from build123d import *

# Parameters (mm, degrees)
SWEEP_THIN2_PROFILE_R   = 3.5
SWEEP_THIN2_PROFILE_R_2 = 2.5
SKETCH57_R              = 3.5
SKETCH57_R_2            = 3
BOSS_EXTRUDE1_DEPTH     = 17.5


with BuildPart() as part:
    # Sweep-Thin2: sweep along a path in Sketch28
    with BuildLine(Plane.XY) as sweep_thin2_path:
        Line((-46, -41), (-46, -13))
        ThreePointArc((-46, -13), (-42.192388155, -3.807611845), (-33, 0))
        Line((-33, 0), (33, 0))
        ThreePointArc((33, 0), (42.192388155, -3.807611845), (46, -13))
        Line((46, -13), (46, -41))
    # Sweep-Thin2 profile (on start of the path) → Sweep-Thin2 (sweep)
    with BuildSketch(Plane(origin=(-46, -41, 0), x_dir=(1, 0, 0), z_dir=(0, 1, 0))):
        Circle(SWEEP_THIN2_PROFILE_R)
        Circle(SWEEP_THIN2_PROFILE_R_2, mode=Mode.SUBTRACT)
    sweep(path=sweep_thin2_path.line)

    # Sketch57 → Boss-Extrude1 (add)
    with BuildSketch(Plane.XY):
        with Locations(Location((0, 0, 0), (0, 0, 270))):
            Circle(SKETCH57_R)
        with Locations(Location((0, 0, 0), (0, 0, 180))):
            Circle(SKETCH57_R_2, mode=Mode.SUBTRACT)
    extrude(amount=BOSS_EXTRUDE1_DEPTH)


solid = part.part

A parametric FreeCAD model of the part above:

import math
import FreeCAD as App
import Part
import Sketcher

doc = App.newDocument("Part")
body = doc.addObject("PartDesign::Body", "Body")

# Sketch on XZ plane
sketch1 = body.newObject("Sketcher::SketchObject", "Sketch")
sketch1.AttachmentSupport = (doc.getObject("XZ_Plane"), [""])
sketch1.MapMode = "FlatFace"
sketch1.AttachmentOffset = App.Placement(App.Vector(0, 0, 41), App.Rotation())
sketch1.addGeometry(Part.Circle(App.Vector(-46, 0, 0), App.Vector(0, 0, 1), 3.5), False)
sketch1.addGeometry(Part.Circle(App.Vector(-46, 0, 0), App.Vector(0, 0, 1), 2.5), False)
sketch1.addConstraint(Sketcher.Constraint("Coincident", 1, 3, 0, 3))
sketch1.addConstraint(Sketcher.Constraint("PointOnObject", 0, 3, -1))
sketch1.addConstraint(Sketcher.Constraint("Diameter", 0, 7.0))
sketch1.addConstraint(Sketcher.Constraint("Diameter", 1, 5.0))
sketch1.addConstraint(Sketcher.Constraint("DistanceX", 0, 3, -1, 1, 46.0))

# Sketch on XY plane
sketch2 = body.newObject("Sketcher::SketchObject", "Sketch001")
sketch2.AttachmentSupport = (doc.getObject("XY_Plane"), [""])
sketch2.MapMode = "FlatFace"
sketch2.addGeometry(Part.LineSegment(App.Vector(-46, -41, 0), App.Vector(-46, -13, 0)), False)
sketch2.addGeometry(Part.ArcOfCircle(Part.Circle(App.Vector(-33, -13, 0), App.Vector(0, 0, 1), 13), math.radians(90), math.radians(180)), False)
sketch2.addGeometry(Part.LineSegment(App.Vector(-33, 0, 0), App.Vector(33, 0, 0)), False)
sketch2.addGeometry(Part.ArcOfCircle(Part.Circle(App.Vector(33, -13, 0), App.Vector(0, 0, 1), 13), math.radians(0), math.radians(90)), False)
sketch2.addGeometry(Part.LineSegment(App.Vector(46, -13, 0), App.Vector(46, -41, 0)), False)
sketch2.addConstraint(Sketcher.Constraint("Tangent", 0, 2, 1, 2))
sketch2.addConstraint(Sketcher.Constraint("Tangent", 1, 1, 2, 1))
sketch2.addConstraint(Sketcher.Constraint("Tangent", 2, 2, 3, 2))
sketch2.addConstraint(Sketcher.Constraint("Tangent", 3, 1, 4, 1))
sketch2.addConstraint(Sketcher.Constraint("Vertical", 0))
sketch2.addConstraint(Sketcher.Constraint("Horizontal", 2))
sketch2.addConstraint(Sketcher.Constraint("Vertical", 4))
sketch2.addConstraint(Sketcher.Constraint("Equal", 1, 3))
sketch2.addConstraint(Sketcher.Constraint("Symmetric", 1, 1, 2, 2, -1, 1))
sketch2.addConstraint(Sketcher.Constraint("Horizontal", 0, 1, 4, 2))
sketch2.addConstraint(Sketcher.Constraint("Radius", 1, 13.0))
sketch2.addConstraint(Sketcher.Constraint("DistanceX", 2, 1, 2, 2, 66.0))
sketch2.addConstraint(Sketcher.Constraint("DistanceY", 0, 1, 0, 2, 28.0))
doc.recompute()

additivepipe = body.newObject("PartDesign::AdditivePipe", "AdditivePipe")
additivepipe.Profile = sketch1
additivepipe.Spine = (sketch2, ["Edge1", "Edge2", "Edge3", "Edge4", "Edge5"])

# Sketch on XY plane
sketch3 = body.newObject("Sketcher::SketchObject", "Sketch002")
sketch3.AttachmentSupport = (doc.getObject("XY_Plane"), [""])
sketch3.MapMode = "FlatFace"
sketch3.addGeometry(Part.Circle(App.Vector(0, 0, 0), App.Vector(0, 0, 1), 3.5), False)
sketch3.addGeometry(Part.Circle(App.Vector(0, 0, 0), App.Vector(0, 0, 1), 3), False)
sketch3.addConstraint(Sketcher.Constraint("Coincident", 0, 3, -1, 1))
sketch3.addConstraint(Sketcher.Constraint("Coincident", 1, 3, -1, 1))
sketch3.addConstraint(Sketcher.Constraint("Diameter", 0, 7.0))
sketch3.addConstraint(Sketcher.Constraint("Diameter", 1, 6.0))
pad1 = body.newObject("PartDesign::Pad", "Pad")
pad1.Profile = sketch3
pad1.Length = 17.5

doc.recompute()
